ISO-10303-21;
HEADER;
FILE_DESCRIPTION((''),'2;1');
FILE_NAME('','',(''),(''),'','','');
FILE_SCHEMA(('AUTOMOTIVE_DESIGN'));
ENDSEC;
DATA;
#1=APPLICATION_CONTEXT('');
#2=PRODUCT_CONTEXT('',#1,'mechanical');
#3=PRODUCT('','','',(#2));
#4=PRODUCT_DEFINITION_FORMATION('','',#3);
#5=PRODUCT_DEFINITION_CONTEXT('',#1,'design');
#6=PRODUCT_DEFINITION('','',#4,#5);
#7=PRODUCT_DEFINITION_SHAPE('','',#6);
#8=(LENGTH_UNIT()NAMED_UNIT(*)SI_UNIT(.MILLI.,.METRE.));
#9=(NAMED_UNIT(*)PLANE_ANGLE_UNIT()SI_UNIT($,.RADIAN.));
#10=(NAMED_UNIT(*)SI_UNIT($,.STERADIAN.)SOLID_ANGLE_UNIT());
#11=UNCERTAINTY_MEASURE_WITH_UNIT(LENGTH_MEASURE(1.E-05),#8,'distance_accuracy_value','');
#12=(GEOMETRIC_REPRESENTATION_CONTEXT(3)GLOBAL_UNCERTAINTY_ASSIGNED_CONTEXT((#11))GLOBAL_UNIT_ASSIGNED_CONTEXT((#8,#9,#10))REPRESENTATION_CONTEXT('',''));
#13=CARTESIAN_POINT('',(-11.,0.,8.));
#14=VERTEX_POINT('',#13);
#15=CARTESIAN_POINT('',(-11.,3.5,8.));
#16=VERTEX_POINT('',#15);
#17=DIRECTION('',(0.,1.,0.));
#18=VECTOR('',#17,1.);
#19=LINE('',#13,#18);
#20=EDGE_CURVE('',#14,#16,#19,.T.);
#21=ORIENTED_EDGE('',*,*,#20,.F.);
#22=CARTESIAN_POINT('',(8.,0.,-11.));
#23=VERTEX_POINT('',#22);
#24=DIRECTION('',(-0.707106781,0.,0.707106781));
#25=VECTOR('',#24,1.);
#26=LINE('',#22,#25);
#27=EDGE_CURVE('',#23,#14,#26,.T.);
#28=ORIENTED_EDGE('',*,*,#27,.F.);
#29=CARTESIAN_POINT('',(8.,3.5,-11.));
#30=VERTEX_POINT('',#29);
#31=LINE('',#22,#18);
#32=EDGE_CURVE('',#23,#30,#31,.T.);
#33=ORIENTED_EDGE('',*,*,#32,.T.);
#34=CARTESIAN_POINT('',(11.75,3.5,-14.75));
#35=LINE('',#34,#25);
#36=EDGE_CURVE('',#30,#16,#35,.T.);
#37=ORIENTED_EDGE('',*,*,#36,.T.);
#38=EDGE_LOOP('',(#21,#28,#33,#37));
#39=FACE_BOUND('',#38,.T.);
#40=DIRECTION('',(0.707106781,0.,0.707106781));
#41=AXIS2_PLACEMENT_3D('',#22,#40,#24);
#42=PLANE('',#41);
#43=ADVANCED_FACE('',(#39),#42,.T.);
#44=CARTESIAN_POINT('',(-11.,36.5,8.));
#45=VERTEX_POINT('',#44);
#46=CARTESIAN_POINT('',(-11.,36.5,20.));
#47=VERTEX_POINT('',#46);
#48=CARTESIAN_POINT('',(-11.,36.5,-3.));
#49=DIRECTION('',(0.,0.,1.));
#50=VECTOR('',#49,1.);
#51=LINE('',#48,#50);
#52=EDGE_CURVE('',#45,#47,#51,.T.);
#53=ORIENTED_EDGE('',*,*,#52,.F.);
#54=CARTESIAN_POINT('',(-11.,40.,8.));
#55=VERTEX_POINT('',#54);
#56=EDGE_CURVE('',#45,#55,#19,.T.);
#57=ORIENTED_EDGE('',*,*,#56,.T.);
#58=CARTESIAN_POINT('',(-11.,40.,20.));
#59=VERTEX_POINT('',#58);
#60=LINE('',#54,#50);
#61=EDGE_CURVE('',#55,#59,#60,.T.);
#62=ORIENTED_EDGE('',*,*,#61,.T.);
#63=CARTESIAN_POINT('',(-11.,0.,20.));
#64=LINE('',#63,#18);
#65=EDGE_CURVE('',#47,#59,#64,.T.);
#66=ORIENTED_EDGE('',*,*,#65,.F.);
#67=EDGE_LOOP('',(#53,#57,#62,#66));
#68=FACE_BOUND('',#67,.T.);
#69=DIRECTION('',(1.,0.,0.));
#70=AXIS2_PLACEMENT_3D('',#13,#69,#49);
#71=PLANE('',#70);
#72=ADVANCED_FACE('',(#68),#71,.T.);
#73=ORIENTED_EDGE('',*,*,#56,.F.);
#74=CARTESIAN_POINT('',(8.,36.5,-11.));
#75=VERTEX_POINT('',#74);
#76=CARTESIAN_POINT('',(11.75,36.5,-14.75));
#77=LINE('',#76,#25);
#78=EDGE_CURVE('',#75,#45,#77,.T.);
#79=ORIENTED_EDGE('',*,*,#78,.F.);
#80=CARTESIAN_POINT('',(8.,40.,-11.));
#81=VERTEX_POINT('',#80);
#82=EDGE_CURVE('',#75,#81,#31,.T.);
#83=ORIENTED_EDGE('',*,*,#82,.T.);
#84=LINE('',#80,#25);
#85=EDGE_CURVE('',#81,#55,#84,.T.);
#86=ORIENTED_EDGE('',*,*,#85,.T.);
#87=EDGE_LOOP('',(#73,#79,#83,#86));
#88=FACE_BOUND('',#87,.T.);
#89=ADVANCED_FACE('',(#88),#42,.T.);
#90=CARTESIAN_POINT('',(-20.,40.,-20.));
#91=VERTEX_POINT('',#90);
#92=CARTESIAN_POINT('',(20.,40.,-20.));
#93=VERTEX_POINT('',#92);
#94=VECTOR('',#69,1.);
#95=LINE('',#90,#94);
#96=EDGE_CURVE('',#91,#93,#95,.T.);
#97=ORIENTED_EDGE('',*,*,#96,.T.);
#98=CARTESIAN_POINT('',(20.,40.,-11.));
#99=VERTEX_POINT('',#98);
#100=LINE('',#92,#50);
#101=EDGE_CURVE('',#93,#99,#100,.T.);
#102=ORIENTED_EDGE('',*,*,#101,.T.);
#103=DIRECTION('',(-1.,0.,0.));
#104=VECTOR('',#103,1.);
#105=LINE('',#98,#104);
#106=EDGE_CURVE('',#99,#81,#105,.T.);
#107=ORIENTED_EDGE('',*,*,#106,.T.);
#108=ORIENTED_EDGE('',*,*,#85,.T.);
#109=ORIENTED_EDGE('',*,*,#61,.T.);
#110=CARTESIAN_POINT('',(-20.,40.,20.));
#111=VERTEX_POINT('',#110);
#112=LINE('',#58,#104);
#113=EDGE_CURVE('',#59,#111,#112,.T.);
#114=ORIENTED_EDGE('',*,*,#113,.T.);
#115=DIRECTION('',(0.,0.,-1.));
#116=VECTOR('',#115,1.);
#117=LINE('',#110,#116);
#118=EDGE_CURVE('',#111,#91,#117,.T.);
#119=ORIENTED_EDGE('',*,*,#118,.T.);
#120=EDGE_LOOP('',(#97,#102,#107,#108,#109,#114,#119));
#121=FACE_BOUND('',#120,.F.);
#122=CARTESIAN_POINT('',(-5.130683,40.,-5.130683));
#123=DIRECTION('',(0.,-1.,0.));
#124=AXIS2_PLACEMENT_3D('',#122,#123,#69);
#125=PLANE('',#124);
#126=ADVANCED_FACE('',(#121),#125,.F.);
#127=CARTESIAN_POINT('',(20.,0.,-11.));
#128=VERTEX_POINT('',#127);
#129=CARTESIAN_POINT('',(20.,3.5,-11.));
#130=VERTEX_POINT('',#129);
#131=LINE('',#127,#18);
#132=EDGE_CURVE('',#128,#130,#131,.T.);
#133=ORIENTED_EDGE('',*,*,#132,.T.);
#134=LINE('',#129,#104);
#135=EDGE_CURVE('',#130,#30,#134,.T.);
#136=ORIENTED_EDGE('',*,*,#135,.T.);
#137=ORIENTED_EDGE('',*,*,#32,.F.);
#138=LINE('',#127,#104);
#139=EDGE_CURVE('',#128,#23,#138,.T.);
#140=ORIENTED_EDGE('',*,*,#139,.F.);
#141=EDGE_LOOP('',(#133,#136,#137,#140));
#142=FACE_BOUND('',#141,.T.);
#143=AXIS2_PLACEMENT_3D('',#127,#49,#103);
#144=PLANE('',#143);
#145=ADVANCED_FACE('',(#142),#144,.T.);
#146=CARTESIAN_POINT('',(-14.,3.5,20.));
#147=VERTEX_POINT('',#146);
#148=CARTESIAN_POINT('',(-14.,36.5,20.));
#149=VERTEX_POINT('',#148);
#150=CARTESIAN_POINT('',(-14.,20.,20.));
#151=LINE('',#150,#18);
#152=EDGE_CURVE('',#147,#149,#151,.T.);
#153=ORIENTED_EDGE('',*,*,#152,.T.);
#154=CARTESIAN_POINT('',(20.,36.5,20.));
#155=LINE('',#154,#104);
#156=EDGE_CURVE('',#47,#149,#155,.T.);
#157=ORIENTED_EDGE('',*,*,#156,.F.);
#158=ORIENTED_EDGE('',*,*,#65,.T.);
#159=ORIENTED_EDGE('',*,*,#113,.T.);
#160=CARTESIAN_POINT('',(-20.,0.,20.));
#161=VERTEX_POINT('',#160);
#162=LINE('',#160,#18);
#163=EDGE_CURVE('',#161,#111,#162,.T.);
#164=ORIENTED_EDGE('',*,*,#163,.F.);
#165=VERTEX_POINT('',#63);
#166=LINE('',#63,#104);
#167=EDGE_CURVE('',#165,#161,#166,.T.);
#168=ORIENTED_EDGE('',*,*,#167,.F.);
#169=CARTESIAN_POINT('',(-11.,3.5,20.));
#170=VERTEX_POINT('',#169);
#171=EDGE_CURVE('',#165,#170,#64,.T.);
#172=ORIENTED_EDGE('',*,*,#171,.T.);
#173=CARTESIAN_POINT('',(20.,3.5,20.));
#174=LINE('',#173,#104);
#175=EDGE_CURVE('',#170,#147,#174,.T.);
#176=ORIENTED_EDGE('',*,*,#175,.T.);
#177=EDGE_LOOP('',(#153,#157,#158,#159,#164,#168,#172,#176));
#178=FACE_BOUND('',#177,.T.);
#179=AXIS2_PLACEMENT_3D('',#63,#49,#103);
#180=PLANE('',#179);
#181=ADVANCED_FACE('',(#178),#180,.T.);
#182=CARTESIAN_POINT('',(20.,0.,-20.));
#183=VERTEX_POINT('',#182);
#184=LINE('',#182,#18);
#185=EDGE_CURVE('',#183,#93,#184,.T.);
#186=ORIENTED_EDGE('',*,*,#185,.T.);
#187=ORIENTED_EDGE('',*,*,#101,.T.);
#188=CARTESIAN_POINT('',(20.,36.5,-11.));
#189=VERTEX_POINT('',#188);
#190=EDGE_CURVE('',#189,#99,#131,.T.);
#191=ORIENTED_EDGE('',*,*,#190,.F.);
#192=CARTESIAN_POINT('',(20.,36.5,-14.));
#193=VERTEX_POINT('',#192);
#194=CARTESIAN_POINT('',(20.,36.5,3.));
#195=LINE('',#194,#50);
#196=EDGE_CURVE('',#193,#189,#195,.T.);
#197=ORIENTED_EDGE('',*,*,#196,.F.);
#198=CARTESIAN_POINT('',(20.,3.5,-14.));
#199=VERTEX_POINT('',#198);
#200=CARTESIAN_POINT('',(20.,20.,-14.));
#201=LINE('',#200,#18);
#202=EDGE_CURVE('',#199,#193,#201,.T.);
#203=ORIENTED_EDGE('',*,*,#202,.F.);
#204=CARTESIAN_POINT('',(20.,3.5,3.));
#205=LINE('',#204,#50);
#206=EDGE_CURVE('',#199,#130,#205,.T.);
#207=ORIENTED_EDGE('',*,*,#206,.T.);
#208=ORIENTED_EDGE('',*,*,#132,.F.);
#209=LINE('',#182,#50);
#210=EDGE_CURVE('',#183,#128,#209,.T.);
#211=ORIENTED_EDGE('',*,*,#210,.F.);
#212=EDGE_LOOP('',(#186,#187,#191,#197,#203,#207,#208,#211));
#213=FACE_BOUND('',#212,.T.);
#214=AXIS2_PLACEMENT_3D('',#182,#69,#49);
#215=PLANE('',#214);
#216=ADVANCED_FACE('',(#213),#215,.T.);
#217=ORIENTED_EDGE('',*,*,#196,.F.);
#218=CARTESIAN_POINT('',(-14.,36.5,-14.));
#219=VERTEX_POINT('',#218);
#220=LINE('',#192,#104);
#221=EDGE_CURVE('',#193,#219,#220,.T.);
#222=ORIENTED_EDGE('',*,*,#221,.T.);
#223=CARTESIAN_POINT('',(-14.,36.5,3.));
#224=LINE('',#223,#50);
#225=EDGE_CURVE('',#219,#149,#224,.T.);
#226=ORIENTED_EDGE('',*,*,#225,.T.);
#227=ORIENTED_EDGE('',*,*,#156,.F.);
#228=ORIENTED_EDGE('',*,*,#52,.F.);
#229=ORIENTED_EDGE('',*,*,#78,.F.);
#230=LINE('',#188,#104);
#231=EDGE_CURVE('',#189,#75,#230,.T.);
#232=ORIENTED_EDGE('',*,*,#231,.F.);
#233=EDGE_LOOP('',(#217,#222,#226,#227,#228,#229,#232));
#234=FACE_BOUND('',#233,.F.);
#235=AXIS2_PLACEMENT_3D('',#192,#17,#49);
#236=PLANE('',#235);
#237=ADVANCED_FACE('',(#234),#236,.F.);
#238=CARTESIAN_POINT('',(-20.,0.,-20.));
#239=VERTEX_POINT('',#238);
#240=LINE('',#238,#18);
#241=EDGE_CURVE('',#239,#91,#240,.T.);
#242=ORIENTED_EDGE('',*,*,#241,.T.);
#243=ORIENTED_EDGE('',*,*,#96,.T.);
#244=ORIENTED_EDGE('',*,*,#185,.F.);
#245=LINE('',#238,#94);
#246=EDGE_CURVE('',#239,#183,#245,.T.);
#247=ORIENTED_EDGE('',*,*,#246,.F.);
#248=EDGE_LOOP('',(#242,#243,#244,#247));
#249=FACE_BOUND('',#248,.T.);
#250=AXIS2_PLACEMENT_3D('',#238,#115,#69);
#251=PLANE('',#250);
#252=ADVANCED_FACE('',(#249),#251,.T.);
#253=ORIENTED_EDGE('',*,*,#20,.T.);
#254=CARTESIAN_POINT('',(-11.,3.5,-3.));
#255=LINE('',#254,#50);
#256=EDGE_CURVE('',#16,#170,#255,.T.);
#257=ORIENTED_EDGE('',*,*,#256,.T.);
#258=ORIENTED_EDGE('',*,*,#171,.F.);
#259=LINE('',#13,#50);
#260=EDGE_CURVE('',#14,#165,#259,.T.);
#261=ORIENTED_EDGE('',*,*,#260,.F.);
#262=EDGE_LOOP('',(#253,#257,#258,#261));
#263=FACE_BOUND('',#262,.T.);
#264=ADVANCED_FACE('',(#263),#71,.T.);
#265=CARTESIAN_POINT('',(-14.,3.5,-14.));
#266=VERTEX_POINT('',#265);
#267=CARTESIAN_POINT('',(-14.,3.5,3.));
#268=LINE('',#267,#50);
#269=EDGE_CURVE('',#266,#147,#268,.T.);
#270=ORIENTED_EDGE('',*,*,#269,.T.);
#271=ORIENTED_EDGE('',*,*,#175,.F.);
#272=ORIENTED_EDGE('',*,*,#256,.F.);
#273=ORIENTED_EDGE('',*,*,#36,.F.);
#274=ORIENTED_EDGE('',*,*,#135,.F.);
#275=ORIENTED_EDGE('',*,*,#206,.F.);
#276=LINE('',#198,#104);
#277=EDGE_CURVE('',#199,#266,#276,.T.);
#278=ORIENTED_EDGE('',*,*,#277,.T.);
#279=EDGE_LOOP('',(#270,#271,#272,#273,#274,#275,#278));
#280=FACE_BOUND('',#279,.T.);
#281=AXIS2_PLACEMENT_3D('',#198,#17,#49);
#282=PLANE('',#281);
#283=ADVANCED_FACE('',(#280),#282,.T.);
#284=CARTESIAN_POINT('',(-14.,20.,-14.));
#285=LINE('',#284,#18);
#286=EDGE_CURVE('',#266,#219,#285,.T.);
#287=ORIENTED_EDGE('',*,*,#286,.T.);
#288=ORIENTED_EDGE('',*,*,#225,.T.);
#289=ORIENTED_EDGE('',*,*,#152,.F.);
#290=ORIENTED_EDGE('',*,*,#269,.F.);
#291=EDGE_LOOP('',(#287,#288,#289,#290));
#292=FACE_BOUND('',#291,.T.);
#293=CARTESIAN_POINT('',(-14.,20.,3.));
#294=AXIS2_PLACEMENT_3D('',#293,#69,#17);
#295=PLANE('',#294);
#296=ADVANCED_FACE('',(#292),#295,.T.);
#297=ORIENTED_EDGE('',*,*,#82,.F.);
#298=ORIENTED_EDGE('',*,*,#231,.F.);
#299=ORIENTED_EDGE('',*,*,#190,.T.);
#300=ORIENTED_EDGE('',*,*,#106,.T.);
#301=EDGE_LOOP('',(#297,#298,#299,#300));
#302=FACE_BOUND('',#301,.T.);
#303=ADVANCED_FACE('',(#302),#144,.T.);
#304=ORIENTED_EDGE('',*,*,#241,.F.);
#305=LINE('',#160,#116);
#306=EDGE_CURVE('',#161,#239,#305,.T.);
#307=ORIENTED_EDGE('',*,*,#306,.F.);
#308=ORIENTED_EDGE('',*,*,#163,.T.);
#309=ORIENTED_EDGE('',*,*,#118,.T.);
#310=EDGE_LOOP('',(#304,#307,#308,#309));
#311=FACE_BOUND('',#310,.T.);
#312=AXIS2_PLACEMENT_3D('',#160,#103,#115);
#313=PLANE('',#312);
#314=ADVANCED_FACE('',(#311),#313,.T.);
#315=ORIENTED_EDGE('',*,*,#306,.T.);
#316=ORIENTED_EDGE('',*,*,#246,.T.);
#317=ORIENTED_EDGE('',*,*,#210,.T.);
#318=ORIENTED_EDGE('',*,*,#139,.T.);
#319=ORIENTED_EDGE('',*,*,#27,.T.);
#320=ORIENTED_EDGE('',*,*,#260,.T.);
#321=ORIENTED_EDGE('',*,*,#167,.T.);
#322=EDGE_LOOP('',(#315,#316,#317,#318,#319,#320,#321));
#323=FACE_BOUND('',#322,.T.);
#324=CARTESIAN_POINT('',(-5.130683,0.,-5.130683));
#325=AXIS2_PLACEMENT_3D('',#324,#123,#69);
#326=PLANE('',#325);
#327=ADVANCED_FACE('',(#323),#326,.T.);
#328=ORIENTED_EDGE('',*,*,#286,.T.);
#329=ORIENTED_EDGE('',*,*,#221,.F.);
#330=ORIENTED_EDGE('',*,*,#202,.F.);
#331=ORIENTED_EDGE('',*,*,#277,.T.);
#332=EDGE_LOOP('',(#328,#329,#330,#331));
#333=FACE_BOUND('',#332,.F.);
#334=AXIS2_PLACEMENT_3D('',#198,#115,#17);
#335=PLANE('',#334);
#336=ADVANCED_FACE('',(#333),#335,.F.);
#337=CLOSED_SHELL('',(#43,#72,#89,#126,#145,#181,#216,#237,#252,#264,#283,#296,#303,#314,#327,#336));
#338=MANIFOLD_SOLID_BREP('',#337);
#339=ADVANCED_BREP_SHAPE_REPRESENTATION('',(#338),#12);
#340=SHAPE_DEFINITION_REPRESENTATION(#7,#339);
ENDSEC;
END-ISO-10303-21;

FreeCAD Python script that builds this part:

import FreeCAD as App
import Part
import Sketcher
from FreeCAD import Vector
Q = App.Units.Quantity


def add_polygon(sketch, points):
    """Adds a closed chain of lines whose ends are joined by coincident constraints."""
    first, n = sketch.GeometryCount, len(points)
    for a, b in zip(points, points[1:] + points[:1]):
        sketch.addGeometry(Part.LineSegment(App.Vector(*a, 0), App.Vector(*b, 0)), False)
    for i in range(n):
        sketch.addConstraint(Sketcher.Constraint("Coincident", first + i, 2, first + (i + 1) % n, 1))

doc = App.newDocument("Part")
body = doc.addObject("PartDesign::Body", "Body")

# Sketch on XZ plane
sketch1 = body.newObject("Sketcher::SketchObject", "Sketch")
sketch1.AttachmentSupport = (doc.getObject("XZ_Plane"), [""])
sketch1.MapMode = "FlatFace"
add_polygon(sketch1, [(-20, 20), (-20, -20), (20, -20), (20, -11), (8, -11), (-11, 8), (-11, 20)])  # lines 0-6
sketch1.addConstraint(Sketcher.Constraint("Vertical", 0))
sketch1.addConstraint(Sketcher.Constraint("Horizontal", 1))
sketch1.addConstraint(Sketcher.Constraint("Vertical", 2))
sketch1.addConstraint(Sketcher.Constraint("Horizontal", 3))
sketch1.addConstraint(Sketcher.Constraint("Vertical", 5))
sketch1.addConstraint(Sketcher.Constraint("Horizontal", 6))
sketch1.addConstraint(Sketcher.Constraint("Symmetric", 1, 2, 6, 2, -1, 1))
sketch1.addConstraint(Sketcher.Constraint("Equal", 1, 0))
sketch1.addConstraint(Sketcher.Constraint("Equal", 6, 2))
sketch1.addConstraint(Sketcher.Constraint("Equal", 3, 5))
sketch1.addConstraint(Sketcher.Constraint("DistanceX", 1, 1, 1, 2, Q("40 mm")))
sketch1.addConstraint(Sketcher.Constraint("DistanceX", 3, 2, 3, 1, Q("12 mm")))
sketch1.addConstraint(Sketcher.Constraint("DistanceX", 6, 2, 6, 1, Q("9 mm")))
pad1 = body.newObject("PartDesign::Pad", "Pad")
pad1.Profile = sketch1
pad1.Length = 40
pad1.Reversed = True

# Sketch on YZ plane
sketch2 = body.newObject("Sketcher::SketchObject", "Sketch001")
sketch2.AttachmentSupport = (doc.getObject("YZ_Plane"), [""])
sketch2.MapMode = "FlatFace"
sketch2.AttachmentOffset = App.Placement(Vector(0, 0, 20), App.Rotation())
add_polygon(sketch2, [(4, 20), (4, -14), (36, -14), (36, 20)])  # lines 0-3
sketch2.addConstraint(Sketcher.Constraint("Vertical", 0))
sketch2.addConstraint(Sketcher.Constraint("Horizontal", 1))
sketch2.addConstraint(Sketcher.Constraint("Vertical", 2))
sketch2.addConstraint(Sketcher.Constraint("Horizontal", 3))
sketch2.addConstraint(Sketcher.Constraint("DistanceX", 1, 1, 1, 2, Q("33 mm")))
sketch2.addConstraint(Sketcher.Constraint("DistanceY", 0, 2, 0, 1, Q("34 mm")))
sketch2.addConstraint(Sketcher.Constraint("DistanceY", 0, 2, -1, 1, Q("14 mm")))
sketch2.addConstraint(Sketcher.Constraint("DistanceX", -1, 1, 0, 2, Q("3.5 mm")))
pocket1 = body.newObject("PartDesign::Pocket", "Pocket")
pocket1.Profile = sketch2
pocket1.Length = 34

doc.recompute()
